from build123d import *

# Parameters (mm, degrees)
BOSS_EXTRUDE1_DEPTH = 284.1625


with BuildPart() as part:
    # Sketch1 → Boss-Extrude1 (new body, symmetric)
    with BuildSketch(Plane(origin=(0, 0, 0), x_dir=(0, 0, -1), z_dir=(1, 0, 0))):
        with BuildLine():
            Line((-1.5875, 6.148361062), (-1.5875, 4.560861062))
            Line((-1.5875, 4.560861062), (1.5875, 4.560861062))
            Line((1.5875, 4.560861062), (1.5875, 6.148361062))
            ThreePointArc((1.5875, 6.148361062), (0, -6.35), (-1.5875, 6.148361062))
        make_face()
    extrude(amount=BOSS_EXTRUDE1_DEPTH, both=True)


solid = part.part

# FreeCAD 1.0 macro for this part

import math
import FreeCAD as App
import Part
import Sketcher

V = App.Vector
Q = App.Units.Quantity

doc = App.newDocument("Part")
body = doc.addObject("PartDesign::Body", "Body")

# Sketch on YZ plane
sketch1 = doc.addObject("Sketcher::SketchObject", "Sketch")
body.addObject(sketch1)
sketch1.AttachmentSupport = (doc.YZ_Plane, [""])
sketch1.MapMode = "FlatFace"
sketch1.addGeometry([
    Part.LineSegment(V(4.560861, 1.5875, 0), V(6.148361, 1.5875, 0)),
    Part.ArcOfCircle(Part.Circle(V(0, 0, 0), V(0, 0, 1), 6.35), math.radians(14.477512), math.radians(345.522488)),
    Part.LineSegment(V(6.148361, -1.5875, 0), V(4.560861, -1.5875, 0)),
    Part.LineSegment(V(4.560861, -1.5875, 0), V(4.560861, 1.5875, 0)),
], False)
sketch1.addConstraint([
    Sketcher.Constraint("Coincident", 0, 2, 1, 1),
    Sketcher.Constraint("Coincident", 1, 2, 2, 1),
    Sketcher.Constraint("Coincident", 2, 2, 3, 1),
    Sketcher.Constraint("Coincident", 3, 2, 0, 1),
    Sketcher.Constraint("Horizontal", 0),
    Sketcher.Constraint("Horizontal", 2),
    Sketcher.Constraint("Vertical", 3),
    Sketcher.Constraint("Coincident", 1, 3, -1, 1),
    Sketcher.Constraint("Vertical", 0, 2, 1, 2),
    Sketcher.Constraint("Radius", 1, Q("0.25 in")),
    Sketcher.Constraint("DistanceX", 0, 1, 0, 2, Q("0.0625 in")),
    Sketcher.Constraint("DistanceY", 3, 1, 3, 2, Q("0.125 in")),
])
pad1 = doc.addObject("PartDesign::Pad", "Pad")
body.addObject(pad1)
pad1.Profile = sketch1
pad1.Length = Q("22.375 in")
pad1.Midplane = True

doc.recompute()
